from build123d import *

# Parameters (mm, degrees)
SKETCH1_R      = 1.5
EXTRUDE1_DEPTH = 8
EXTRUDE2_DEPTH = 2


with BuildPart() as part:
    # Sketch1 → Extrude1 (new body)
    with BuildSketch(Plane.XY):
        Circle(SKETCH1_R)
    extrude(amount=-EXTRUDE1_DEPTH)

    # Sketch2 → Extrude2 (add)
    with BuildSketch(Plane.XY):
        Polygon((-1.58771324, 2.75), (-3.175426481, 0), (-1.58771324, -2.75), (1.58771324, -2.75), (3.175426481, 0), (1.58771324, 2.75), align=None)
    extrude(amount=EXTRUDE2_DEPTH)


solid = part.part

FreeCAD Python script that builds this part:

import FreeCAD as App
import Part
import Sketcher

V = App.Vector
Q = App.Units.Quantity

doc = App.newDocument("Part")
params = doc.addObject("Spreadsheet::Sheet", "Params")
for row, (alias, value) in enumerate([
    ("sketch1_diameter", "3 mm"),
    ("pad1_length", "8 mm"),
    ("pad2_length", "2 mm"),
], start=1):
    params.set(f"A{row}", alias)
    params.set(f"B{row}", "=" + value)
    params.setAlias(f"B{row}", alias)

body = doc.addObject("PartDesign::Body", "Body")

# Sketch on XY plane
sketch1 = doc.addObject("Sketcher::SketchObject", "Sketch")
body.addObject(sketch1)
sketch1.AttachmentSupport = (doc.XY_Plane, [""])
sketch1.MapMode = "FlatFace"
sketch1.addGeometry(Part.Circle(V(0, 0, 0), V(0, 0, 1), 1.5), False)
sketch1.addConstraint([
    Sketcher.Constraint("Coincident", 0, 3, -1, 1),
    Sketcher.Constraint("Diameter", 0, Q("3 mm")),
])
sketch1.setExpression("Constraints[1]", "Params.sketch1_diameter")
pad1 = doc.addObject("PartDesign::Pad", "Pad")
body.addObject(pad1)
pad1.Profile = sketch1
pad1.setExpression("Length", "Params.pad1_length")
pad1.Reversed = True

# Sketch on XY plane
sketch2 = doc.addObject("Sketcher::SketchObject", "Sketch001")
body.addObject(sketch2)
sketch2.AttachmentSupport = (doc.XY_Plane, [""])
sketch2.MapMode = "FlatFace"
sketch2.addGeometry([
    Part.LineSegment(V(-1.6, 2.8, 0), V(-3.2, 0, 0)),  # 0
    Part.LineSegment(V(-3.2, 0, 0), V(-1.6, -2.8, 0)),  # 1
    Part.LineSegment(V(-1.6, -2.8, 0), V(1.6, -2.8, 0)),  # 2
    Part.LineSegment(V(1.6, -2.8, 0), V(3.2, 0, 0)),  # 3
    Part.LineSegment(V(3.2, 0, 0), V(1.6, 2.8, 0)),  # 4
    Part.LineSegment(V(1.6, 2.8, 0), V(-1.6, 2.8, 0)),  # 5
], False)
sketch2.addConstraint([
    Sketcher.Constraint("Coincident", 0, 2, 1, 1),
    Sketcher.Constraint("Coincident", 1, 2, 2, 1),
    Sketcher.Constraint("Coincident", 2, 2, 3, 1),
    Sketcher.Constraint("Coincident", 3, 2, 4, 1),
    Sketcher.Constraint("Coincident", 4, 2, 5, 1),
    Sketcher.Constraint("Coincident", 5, 2, 0, 1),
    Sketcher.Constraint("Horizontal", 2),
    Sketcher.Constraint("Horizontal", 5),
    Sketcher.Constraint("Symmetric", 0, 2, 3, 2, -1, 1),
    Sketcher.Constraint("Symmetric", 1, 2, 4, 2, -1, 1),
    Sketcher.Constraint("PointOnObject", 0, 2, -1),
    Sketcher.Constraint("Parallel", 0, 3),
    Sketcher.Constraint("Vertical", 2, 2, 4, 2),
    Sketcher.Constraint("Angle", 0, Q("-120 deg")),
    Sketcher.Constraint("DistanceY", 2, 2, 4, 2, Q("5.5 mm")),
    Sketcher.Constraint("DistanceX", 2, 1, 2, 2, Q("3.175426 mm")),
])
pad2 = doc.addObject("PartDesign::Pad", "Pad001")
body.addObject(pad2)
pad2.Profile = sketch2
pad2.setExpression("Length", "Params.pad2_length")

doc.recompute()
